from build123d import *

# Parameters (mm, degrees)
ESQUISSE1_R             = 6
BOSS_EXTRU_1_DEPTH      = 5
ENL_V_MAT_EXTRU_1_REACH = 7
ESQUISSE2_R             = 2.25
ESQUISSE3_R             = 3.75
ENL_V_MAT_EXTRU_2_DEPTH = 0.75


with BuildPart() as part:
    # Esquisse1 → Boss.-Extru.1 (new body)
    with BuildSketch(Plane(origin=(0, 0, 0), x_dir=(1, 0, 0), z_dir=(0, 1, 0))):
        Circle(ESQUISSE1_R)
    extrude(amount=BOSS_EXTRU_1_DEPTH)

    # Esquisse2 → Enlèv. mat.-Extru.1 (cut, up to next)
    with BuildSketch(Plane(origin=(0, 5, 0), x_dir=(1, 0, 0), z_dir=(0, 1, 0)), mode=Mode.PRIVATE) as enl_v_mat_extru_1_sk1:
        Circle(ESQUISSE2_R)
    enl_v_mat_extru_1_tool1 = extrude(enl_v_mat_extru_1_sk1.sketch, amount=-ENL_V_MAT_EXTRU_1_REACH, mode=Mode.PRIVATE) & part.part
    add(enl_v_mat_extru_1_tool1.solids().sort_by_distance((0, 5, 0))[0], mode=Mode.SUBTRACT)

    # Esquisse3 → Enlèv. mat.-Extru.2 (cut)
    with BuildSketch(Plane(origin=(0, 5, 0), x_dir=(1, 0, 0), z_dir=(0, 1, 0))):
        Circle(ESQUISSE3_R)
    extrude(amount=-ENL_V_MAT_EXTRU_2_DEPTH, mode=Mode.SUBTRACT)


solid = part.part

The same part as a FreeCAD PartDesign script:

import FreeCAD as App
import Part
import Sketcher

V = App.Vector
Q = App.Units.Quantity

doc = App.newDocument("Part")
body = doc.addObject("PartDesign::Body", "Body")

# Sketch on XZ plane
sketch1 = body.newObject("Sketcher::SketchObject", "Sketch")
sketch1.AttachmentSupport = (doc.getObject("XZ_Plane"), [""])
sketch1.MapMode = "FlatFace"
sketch1.addGeometry(Part.Circle(V(0, 0, 0), V(0, 0, 1), 6), False)
sketch1.addConstraint([
    Sketcher.Constraint("Coincident", 0, 3, -1, 1),
    Sketcher.Constraint("Diameter", 0, Q("12 mm")),
])
pad1 = body.newObject("PartDesign::Pad", "Pad")
pad1.Profile = sketch1
pad1.Length = 5
pad1.Reversed = True

# Sketch on XZ plane
sketch2 = body.newObject("Sketcher::SketchObject", "Sketch001")
sketch2.AttachmentSupport = (doc.getObject("XZ_Plane"), [""])
sketch2.MapMode = "FlatFace"
sketch2.AttachmentOffset = App.Placement(V(0, 0, -5), App.Rotation())
sketch2.addGeometry(Part.Circle(V(0, 0, 0), V(0, 0, 1), 2.2), False)
sketch2.addConstraint([
    Sketcher.Constraint("Coincident", 0, 3, -1, 1),
    Sketcher.Constraint("Diameter", 0, Q("4.5 mm")),
])
pocket1 = body.newObject("PartDesign::Pocket", "Pocket")
pocket1.Profile = sketch2
pocket1.Type = "UpToFirst"
pocket1.Reversed = True

# Sketch on XZ plane
sketch3 = body.newObject("Sketcher::SketchObject", "Sketch002")
sketch3.AttachmentSupport = (doc.getObject("XZ_Plane"), [""])
sketch3.MapMode = "FlatFace"
sketch3.AttachmentOffset = App.Placement(V(0, 0, -5), App.Rotation())
sketch3.addGeometry(Part.Circle(V(0, 0, 0), V(0, 0, 1), 3.8), False)
sketch3.addConstraint([
    Sketcher.Constraint("Coincident", 0, 3, -1, 1),
    Sketcher.Constraint("Diameter", 0, Q("7.5 mm")),
])
pocket2 = body.newObject("PartDesign::Pocket", "Pocket001")
pocket2.Profile = sketch3
pocket2.Length = 0.75
pocket2.Reversed = True

doc.recompute()
